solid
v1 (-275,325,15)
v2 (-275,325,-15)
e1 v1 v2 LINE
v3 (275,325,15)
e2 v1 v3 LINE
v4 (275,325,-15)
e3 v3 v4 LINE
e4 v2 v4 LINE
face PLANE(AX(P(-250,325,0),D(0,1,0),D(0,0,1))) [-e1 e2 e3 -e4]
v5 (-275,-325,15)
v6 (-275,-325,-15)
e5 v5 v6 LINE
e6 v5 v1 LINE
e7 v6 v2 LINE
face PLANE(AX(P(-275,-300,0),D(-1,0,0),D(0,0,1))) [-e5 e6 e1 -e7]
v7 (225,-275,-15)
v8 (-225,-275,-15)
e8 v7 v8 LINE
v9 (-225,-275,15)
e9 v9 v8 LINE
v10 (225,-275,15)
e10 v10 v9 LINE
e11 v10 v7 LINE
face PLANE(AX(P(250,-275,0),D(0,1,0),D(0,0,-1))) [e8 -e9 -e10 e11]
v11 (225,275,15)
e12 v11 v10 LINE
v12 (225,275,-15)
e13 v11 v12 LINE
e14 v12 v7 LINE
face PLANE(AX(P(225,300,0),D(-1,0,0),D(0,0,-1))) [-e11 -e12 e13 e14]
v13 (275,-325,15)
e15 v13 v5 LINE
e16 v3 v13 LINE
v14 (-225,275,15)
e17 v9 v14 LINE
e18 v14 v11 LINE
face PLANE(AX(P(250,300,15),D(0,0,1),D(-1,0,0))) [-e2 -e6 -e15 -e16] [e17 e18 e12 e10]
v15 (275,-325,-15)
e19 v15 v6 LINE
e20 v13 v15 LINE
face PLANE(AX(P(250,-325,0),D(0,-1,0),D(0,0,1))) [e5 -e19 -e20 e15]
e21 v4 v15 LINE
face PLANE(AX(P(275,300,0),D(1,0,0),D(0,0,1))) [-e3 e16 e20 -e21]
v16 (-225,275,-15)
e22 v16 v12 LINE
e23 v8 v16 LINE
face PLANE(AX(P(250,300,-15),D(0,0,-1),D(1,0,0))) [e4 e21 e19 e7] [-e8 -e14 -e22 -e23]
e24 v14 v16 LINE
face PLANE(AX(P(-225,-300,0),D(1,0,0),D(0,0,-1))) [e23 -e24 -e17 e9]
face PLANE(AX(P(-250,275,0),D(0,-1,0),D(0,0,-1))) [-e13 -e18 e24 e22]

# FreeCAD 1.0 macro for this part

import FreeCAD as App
import Part
import Sketcher
Q = App.Units.Quantity

doc = App.newDocument("Part")
params = doc.addObject("Spreadsheet::Sheet", "Params")
for row, (alias, value) in enumerate([
    ("sketch1_width", "50 mm"),
    ("sketch1_height", "30 mm"),
    ("sketch2_width", "500 mm"),
    ("sketch2_height", "600 mm"),
], start=1):
    params.set(f"A{row}", alias)
    params.set(f"B{row}", "=" + value)
    params.setAlias(f"B{row}", alias)

body = doc.addObject("PartDesign::Body", "Body")

# Sketch on XZ plane
sketch1 = body.newObject("Sketcher::SketchObject", "Sketch")
sketch1.AttachmentSupport = (doc.getObject("XZ_Plane"), [""])
sketch1.MapMode = "FlatFace"
sketch1.addGeometry([
    Part.LineSegment(App.Vector(225, 15, 0), App.Vector(225, -15, 0)),
    Part.LineSegment(App.Vector(225, -15, 0), App.Vector(275, -15, 0)),
    Part.LineSegment(App.Vector(275, -15, 0), App.Vector(275, 15, 0)),
    Part.LineSegment(App.Vector(275, 15, 0), App.Vector(225, 15, 0)),
], False)
sketch1.addConstraint([
    Sketcher.Constraint("Coincident", 0, 2, 1, 1),
    Sketcher.Constraint("Coincident", 1, 2, 2, 1),
    Sketcher.Constraint("Coincident", 2, 2, 3, 1),
    Sketcher.Constraint("Coincident", 3, 2, 0, 1),
    Sketcher.Constraint("Vertical", 0),
    Sketcher.Constraint("Horizontal", 1),
    Sketcher.Constraint("Vertical", 2),
    Sketcher.Constraint("Horizontal", 3),
    Sketcher.Constraint("DistanceX", 1, 1, 1, 2, Q("50 mm")),
    Sketcher.Constraint("DistanceY", 0, 2, 0, 1, Q("30 mm")),
    Sketcher.Constraint("DistanceX", -1, 1, 0, 2, Q("225 mm")),
    Sketcher.Constraint("DistanceY", 0, 2, -1, 1, Q("15 mm")),
])
sketch1.setExpression("Constraints[8]", "Params.sketch1_width")
sketch1.setExpression("Constraints[9]", "Params.sketch1_height")

# Sketch on XY plane
sketch2 = body.newObject("Sketcher::SketchObject", "Sketch001")
sketch2.AttachmentSupport = (doc.getObject("XY_Plane"), [""])
sketch2.MapMode = "FlatFace"
sketch2.addGeometry([
    Part.LineSegment(App.Vector(250, 300, 0), App.Vector(250, -300, 0)),
    Part.LineSegment(App.Vector(250, -300, 0), App.Vector(-250, -300, 0)),
    Part.LineSegment(App.Vector(-250, -300, 0), App.Vector(-250, 300, 0)),
    Part.LineSegment(App.Vector(-250, 300, 0), App.Vector(250, 300, 0)),
], False)
sketch2.addConstraint([
    Sketcher.Constraint("Coincident", 0, 2, 1, 1),
    Sketcher.Constraint("Coincident", 1, 2, 2, 1),
    Sketcher.Constraint("Coincident", 2, 2, 3, 1),
    Sketcher.Constraint("Coincident", 3, 2, 0, 1),
    Sketcher.Constraint("Vertical", 0),
    Sketcher.Constraint("Horizontal", 1),
    Sketcher.Constraint("Vertical", 2),
    Sketcher.Constraint("Horizontal", 3),
    Sketcher.Constraint("Symmetric", 0, 2, 2, 2, -1, 1),
    Sketcher.Constraint("DistanceX", 1, 2, 1, 1, Q("500 mm")),
    Sketcher.Constraint("DistanceY", 0, 2, 0, 1, Q("600 mm")),
])
sketch2.setExpression("Constraints[9]", "Params.sketch2_width")
sketch2.setExpression("Constraints[10]", "Params.sketch2_height")
doc.recompute()

additivepipe = body.newObject("PartDesign::AdditivePipe", "AdditivePipe")
additivepipe.Profile = sketch1
additivepipe.Spine = (sketch2, ["Edge1", "Edge2", "Edge3", "Edge4"])
additivepipe.Transition = "Right corner"

doc.recompute()
